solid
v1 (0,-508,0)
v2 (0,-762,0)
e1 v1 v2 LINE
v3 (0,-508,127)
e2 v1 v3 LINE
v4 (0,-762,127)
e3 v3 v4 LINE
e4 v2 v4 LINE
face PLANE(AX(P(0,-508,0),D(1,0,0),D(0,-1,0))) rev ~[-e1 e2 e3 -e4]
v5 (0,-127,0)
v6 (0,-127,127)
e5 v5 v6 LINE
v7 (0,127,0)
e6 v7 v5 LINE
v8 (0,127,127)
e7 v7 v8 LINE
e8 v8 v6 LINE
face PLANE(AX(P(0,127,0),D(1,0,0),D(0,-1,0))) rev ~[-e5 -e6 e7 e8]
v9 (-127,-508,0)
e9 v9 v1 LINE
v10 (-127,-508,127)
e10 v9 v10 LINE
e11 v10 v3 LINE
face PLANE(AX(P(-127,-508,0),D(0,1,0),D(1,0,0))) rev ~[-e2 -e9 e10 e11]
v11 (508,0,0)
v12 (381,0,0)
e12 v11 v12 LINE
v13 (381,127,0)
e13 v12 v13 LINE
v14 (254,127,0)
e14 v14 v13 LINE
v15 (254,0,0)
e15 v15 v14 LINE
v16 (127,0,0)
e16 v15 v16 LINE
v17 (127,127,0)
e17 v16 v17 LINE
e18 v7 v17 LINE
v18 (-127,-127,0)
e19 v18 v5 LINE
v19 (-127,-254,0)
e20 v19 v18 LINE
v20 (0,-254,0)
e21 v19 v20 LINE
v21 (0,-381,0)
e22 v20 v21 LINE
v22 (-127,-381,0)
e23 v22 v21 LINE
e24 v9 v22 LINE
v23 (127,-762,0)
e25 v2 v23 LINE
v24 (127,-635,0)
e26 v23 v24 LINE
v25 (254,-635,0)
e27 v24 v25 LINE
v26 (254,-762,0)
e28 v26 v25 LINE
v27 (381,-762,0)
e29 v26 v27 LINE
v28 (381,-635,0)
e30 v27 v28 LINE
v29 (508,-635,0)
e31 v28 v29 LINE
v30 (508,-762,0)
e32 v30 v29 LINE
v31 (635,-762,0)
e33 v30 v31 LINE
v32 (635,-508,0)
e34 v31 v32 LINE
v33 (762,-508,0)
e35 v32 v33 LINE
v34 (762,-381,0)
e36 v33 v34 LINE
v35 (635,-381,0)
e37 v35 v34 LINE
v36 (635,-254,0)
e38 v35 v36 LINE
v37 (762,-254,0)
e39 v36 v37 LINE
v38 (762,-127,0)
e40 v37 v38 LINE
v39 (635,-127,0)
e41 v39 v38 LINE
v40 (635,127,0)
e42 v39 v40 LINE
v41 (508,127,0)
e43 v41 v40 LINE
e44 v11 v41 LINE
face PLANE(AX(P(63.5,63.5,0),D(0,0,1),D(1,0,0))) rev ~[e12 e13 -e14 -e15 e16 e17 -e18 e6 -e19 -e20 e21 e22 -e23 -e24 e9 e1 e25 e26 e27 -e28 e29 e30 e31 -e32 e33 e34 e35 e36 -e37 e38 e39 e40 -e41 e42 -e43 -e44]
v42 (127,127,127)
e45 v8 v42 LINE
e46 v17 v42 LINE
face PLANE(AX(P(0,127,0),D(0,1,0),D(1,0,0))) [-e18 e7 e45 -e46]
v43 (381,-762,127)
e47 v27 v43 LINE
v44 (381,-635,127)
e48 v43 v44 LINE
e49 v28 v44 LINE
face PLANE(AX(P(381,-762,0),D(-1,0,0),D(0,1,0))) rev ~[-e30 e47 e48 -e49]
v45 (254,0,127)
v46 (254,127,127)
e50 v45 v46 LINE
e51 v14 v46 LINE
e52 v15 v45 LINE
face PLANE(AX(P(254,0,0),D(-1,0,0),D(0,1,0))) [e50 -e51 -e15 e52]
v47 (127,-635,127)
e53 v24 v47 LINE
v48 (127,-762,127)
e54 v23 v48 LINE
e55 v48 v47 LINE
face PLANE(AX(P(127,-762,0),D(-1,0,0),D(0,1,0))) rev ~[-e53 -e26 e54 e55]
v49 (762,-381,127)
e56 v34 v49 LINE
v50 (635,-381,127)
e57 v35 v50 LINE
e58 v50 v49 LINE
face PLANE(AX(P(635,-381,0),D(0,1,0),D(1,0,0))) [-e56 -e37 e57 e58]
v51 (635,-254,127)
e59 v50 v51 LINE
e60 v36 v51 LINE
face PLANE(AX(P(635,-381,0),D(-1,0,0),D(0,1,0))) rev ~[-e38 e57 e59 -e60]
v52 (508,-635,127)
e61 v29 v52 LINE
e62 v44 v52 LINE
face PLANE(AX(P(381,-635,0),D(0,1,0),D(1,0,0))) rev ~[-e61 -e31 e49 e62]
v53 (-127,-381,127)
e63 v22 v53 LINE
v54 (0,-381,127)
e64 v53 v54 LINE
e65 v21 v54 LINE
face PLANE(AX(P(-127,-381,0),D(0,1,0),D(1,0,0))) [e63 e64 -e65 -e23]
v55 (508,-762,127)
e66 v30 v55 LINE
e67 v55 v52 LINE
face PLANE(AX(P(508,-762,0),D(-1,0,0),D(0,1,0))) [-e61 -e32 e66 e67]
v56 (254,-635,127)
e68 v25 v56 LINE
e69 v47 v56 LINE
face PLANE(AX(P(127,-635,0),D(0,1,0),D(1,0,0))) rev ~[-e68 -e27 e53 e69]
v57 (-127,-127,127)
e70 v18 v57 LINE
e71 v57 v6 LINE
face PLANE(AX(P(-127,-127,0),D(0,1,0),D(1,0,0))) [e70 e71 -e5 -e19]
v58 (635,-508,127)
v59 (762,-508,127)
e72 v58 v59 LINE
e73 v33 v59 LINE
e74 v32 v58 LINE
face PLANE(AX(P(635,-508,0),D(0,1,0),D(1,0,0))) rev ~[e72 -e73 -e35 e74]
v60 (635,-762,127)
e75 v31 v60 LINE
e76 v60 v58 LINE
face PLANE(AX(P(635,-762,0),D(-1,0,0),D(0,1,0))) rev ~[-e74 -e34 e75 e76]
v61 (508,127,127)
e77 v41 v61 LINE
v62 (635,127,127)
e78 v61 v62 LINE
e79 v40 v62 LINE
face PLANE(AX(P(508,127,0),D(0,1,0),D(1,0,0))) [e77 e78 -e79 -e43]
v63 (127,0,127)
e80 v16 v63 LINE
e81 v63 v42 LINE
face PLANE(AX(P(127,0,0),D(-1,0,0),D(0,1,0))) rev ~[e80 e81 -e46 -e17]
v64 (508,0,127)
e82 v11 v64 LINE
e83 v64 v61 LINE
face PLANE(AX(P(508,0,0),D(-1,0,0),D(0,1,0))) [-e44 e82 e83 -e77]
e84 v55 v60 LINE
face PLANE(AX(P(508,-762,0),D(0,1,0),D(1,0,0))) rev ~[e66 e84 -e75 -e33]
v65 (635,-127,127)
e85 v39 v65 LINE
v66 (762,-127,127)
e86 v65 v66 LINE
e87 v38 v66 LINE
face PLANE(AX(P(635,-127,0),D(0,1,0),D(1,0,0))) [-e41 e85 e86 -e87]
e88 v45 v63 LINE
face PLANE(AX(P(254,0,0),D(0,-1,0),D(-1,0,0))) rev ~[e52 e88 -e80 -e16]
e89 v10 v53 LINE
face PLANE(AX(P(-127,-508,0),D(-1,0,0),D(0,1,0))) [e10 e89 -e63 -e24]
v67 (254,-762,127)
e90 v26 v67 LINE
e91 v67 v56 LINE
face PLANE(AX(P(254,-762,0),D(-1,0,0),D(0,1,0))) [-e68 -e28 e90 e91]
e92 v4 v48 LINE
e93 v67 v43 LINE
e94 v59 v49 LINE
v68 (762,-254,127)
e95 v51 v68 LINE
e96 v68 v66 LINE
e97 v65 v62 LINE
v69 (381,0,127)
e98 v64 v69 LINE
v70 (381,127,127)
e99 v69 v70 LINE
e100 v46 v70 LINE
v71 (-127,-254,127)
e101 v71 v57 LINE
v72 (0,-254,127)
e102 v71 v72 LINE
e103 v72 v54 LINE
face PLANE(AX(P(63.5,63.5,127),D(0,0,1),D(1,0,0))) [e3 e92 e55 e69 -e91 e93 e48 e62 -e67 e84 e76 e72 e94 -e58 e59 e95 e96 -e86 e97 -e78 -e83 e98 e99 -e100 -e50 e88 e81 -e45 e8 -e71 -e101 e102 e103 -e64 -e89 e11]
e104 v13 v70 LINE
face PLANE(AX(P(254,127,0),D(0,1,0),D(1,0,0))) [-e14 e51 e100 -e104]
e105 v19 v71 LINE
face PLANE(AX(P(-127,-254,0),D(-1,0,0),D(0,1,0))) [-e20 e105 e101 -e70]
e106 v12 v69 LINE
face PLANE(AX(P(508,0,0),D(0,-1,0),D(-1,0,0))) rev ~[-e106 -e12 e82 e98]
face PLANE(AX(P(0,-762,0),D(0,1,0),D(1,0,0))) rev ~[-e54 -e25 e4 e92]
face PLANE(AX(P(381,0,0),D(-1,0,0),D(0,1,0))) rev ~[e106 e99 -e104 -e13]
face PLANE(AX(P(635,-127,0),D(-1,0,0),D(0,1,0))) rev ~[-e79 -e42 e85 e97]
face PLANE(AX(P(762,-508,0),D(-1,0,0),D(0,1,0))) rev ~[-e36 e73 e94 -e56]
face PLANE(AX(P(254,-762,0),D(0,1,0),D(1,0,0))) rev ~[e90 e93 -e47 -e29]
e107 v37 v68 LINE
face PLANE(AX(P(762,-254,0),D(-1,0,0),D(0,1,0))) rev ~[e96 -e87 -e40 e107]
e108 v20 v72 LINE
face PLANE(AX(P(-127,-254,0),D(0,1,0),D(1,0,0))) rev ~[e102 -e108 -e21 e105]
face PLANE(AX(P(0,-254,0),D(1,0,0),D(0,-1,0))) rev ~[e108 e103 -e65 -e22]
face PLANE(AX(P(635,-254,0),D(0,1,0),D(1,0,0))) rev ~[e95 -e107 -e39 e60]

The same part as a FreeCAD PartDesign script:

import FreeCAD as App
import Part
import Sketcher

V = App.Vector
Q = App.Units.Quantity


def add_polygon(sketch, points):
    """Adds a closed chain of lines whose ends are joined by coincident constraints."""
    first, n = sketch.GeometryCount, len(points)
    for a, b in zip(points, points[1:] + points[:1]):
        sketch.addGeometry(Part.LineSegment(App.Vector(*a, 0), App.Vector(*b, 0)), False)
    for i in range(n):
        sketch.addConstraint(Sketcher.Constraint("Coincident", first + i, 2, first + (i + 1) % n, 1))

doc = App.newDocument("Part")
body = doc.addObject("PartDesign::Body", "Body")

sketch1 = doc.addObject("Sketcher::SketchObject", "Sketch")
body.addObject(sketch1)
sketch1.AttachmentSupport = (doc.XY_Plane, [""])
sketch1.MapMode = "FlatFace"
add_polygon(sketch1, [(0, 127), (0, -127), (-127, -127), (-127, -254), (0, -254), (0, -381), (-127, -381), (-127, -508), (0, -508), (0, -762), (127, -762), (127, -635), (254, -635), (254, -762), (381, -762), (381, -635), (508, -635), (508, -762), (635, -762), (635, -508), (762, -508), (762, -381), (635, -381), (635, -254), (762, -254), (762, -127), (635, -127), (635, 127), (508, 127), (508, 0), (381, 0), (381, 127), (254, 127), (254, 0), (127, 0), (127, 127)])
sketch1.addConstraint(Sketcher.Constraint("Vertical", 0))
sketch1.addConstraint(Sketcher.Constraint("Horizontal", 1))
sketch1.addConstraint(Sketcher.Constraint("Vertical", 2))
sketch1.addConstraint(Sketcher.Constraint("Horizontal", 3))
sketch1.addConstraint(Sketcher.Constraint("Vertical", 4))
sketch1.addConstraint(Sketcher.Constraint("Horizontal", 5))
sketch1.addConstraint(Sketcher.Constraint("Vertical", 6))
sketch1.addConstraint(Sketcher.Constraint("Horizontal", 7))
sketch1.addConstraint(Sketcher.Constraint("Vertical", 8))
sketch1.addConstraint(Sketcher.Constraint("Horizontal", 9))
sketch1.addConstraint(Sketcher.Constraint("Vertical", 10))
sketch1.addConstraint(Sketcher.Constraint("Horizontal", 11))
sketch1.addConstraint(Sketcher.Constraint("Vertical", 12))
sketch1.addConstraint(Sketcher.Constraint("Horizontal", 13))
sketch1.addConstraint(Sketcher.Constraint("Vertical", 14))
sketch1.addConstraint(Sketcher.Constraint("Horizontal", 15))
sketch1.addConstraint(Sketcher.Constraint("Vertical", 16))
sketch1.addConstraint(Sketcher.Constraint("Horizontal", 17))
sketch1.addConstraint(Sketcher.Constraint("Vertical", 18))
sketch1.addConstraint(Sketcher.Constraint("Horizontal", 19))
sketch1.addConstraint(Sketcher.Constraint("Vertical", 20))
sketch1.addConstraint(Sketcher.Constraint("Horizontal", 21))
sketch1.addConstraint(Sketcher.Constraint("Vertical", 22))
sketch1.addConstraint(Sketcher.Constraint("Horizontal", 23))
sketch1.addConstraint(Sketcher.Constraint("Vertical", 24))
sketch1.addConstraint(Sketcher.Constraint("Horizontal", 25))
sketch1.addConstraint(Sketcher.Constraint("Vertical", 26))
sketch1.addConstraint(Sketcher.Constraint("Horizontal", 27))
sketch1.addConstraint(Sketcher.Constraint("Vertical", 28))
sketch1.addConstraint(Sketcher.Constraint("Horizontal", 29))
sketch1.addConstraint(Sketcher.Constraint("Vertical", 30))
sketch1.addConstraint(Sketcher.Constraint("Horizontal", 31))
sketch1.addConstraint(Sketcher.Constraint("Vertical", 32))
sketch1.addConstraint(Sketcher.Constraint("Horizontal", 33))
sketch1.addConstraint(Sketcher.Constraint("Vertical", 34))
sketch1.addConstraint(Sketcher.Constraint("Horizontal", 35))
sketch1.addConstraint(Sketcher.Constraint("Symmetric", 1, 2, 34, 2, -1, 1))
sketch1.addConstraint(Sketcher.Constraint("PointOnObject", 0, 2, -2))
sketch1.addConstraint(Sketcher.Constraint("PointOnObject", 3, 2, -2))
sketch1.addConstraint(Sketcher.Constraint("PointOnObject", 7, 2, -2))
sketch1.addConstraint(Sketcher.Constraint("PointOnObject", 28, 2, -1))
sketch1.addConstraint(Sketcher.Constraint("PointOnObject", 32, 2, -1))
sketch1.addConstraint(Sketcher.Constraint("Horizontal", 9, 2, 12, 2))
sketch1.addConstraint(Sketcher.Constraint("Horizontal", 11, 2, 14, 2))
sketch1.addConstraint(Sketcher.Constraint("Horizontal", 13, 2, 16, 2))
sketch1.addConstraint(Sketcher.Constraint("Horizontal", 7, 2, 18, 2))
sketch1.addConstraint(Sketcher.Constraint("Horizontal", 5, 2, 20, 2))
sketch1.addConstraint(Sketcher.Constraint("Horizontal", 3, 2, 22, 2))
sketch1.addConstraint(Sketcher.Constraint("Horizontal", 1, 2, 24, 2))
sketch1.addConstraint(Sketcher.Constraint("Horizontal", 27, 2, 30, 2))
sketch1.addConstraint(Sketcher.Constraint("Horizontal", 31, 2, 34, 2))
sketch1.addConstraint(Sketcher.Constraint("Vertical", 2, 2, 5, 2))
sketch1.addConstraint(Sketcher.Constraint("Vertical", 18, 2, 21, 2))
sketch1.addConstraint(Sketcher.Constraint("Vertical", 20, 2, 23, 2))
sketch1.addConstraint(Sketcher.Constraint("Vertical", 22, 2, 25, 2))
sketch1.addConstraint(Sketcher.Constraint("Vertical", 16, 2, 27, 2))
sketch1.addConstraint(Sketcher.Constraint("Vertical", 14, 2, 29, 2))
sketch1.addConstraint(Sketcher.Constraint("Vertical", 12, 2, 31, 2))
sketch1.addConstraint(Sketcher.Constraint("Vertical", 10, 2, 33, 2))
sketch1.addConstraint(Sketcher.Constraint("Equal", 9, 11))
sketch1.addConstraint(Sketcher.Constraint("Equal", 11, 13))
sketch1.addConstraint(Sketcher.Constraint("Equal", 13, 15))
sketch1.addConstraint(Sketcher.Constraint("Equal", 15, 17))
sketch1.addConstraint(Sketcher.Constraint("Equal", 17, 19))
sketch1.addConstraint(Sketcher.Constraint("Equal", 35, 2))
sketch1.addConstraint(Sketcher.Constraint("Equal", 2, 4))
sketch1.addConstraint(Sketcher.Constraint("Equal", 4, 6))
sketch1.addConstraint(Sketcher.Constraint("Equal", 0, 8))
sketch1.addConstraint(Sketcher.Constraint("Equal", 6, 10))
sketch1.addConstraint(Sketcher.Constraint("Equal", 24, 28))
sketch1.addConstraint(Sketcher.Constraint("DistanceX", 1, 2, 1, 1, Q("5 in")))
pad1 = doc.addObject("PartDesign::Pad", "Pad")
body.addObject(pad1)
pad1.Profile = sketch1
pad1.Length = Q("5 in")

doc.recompute()
